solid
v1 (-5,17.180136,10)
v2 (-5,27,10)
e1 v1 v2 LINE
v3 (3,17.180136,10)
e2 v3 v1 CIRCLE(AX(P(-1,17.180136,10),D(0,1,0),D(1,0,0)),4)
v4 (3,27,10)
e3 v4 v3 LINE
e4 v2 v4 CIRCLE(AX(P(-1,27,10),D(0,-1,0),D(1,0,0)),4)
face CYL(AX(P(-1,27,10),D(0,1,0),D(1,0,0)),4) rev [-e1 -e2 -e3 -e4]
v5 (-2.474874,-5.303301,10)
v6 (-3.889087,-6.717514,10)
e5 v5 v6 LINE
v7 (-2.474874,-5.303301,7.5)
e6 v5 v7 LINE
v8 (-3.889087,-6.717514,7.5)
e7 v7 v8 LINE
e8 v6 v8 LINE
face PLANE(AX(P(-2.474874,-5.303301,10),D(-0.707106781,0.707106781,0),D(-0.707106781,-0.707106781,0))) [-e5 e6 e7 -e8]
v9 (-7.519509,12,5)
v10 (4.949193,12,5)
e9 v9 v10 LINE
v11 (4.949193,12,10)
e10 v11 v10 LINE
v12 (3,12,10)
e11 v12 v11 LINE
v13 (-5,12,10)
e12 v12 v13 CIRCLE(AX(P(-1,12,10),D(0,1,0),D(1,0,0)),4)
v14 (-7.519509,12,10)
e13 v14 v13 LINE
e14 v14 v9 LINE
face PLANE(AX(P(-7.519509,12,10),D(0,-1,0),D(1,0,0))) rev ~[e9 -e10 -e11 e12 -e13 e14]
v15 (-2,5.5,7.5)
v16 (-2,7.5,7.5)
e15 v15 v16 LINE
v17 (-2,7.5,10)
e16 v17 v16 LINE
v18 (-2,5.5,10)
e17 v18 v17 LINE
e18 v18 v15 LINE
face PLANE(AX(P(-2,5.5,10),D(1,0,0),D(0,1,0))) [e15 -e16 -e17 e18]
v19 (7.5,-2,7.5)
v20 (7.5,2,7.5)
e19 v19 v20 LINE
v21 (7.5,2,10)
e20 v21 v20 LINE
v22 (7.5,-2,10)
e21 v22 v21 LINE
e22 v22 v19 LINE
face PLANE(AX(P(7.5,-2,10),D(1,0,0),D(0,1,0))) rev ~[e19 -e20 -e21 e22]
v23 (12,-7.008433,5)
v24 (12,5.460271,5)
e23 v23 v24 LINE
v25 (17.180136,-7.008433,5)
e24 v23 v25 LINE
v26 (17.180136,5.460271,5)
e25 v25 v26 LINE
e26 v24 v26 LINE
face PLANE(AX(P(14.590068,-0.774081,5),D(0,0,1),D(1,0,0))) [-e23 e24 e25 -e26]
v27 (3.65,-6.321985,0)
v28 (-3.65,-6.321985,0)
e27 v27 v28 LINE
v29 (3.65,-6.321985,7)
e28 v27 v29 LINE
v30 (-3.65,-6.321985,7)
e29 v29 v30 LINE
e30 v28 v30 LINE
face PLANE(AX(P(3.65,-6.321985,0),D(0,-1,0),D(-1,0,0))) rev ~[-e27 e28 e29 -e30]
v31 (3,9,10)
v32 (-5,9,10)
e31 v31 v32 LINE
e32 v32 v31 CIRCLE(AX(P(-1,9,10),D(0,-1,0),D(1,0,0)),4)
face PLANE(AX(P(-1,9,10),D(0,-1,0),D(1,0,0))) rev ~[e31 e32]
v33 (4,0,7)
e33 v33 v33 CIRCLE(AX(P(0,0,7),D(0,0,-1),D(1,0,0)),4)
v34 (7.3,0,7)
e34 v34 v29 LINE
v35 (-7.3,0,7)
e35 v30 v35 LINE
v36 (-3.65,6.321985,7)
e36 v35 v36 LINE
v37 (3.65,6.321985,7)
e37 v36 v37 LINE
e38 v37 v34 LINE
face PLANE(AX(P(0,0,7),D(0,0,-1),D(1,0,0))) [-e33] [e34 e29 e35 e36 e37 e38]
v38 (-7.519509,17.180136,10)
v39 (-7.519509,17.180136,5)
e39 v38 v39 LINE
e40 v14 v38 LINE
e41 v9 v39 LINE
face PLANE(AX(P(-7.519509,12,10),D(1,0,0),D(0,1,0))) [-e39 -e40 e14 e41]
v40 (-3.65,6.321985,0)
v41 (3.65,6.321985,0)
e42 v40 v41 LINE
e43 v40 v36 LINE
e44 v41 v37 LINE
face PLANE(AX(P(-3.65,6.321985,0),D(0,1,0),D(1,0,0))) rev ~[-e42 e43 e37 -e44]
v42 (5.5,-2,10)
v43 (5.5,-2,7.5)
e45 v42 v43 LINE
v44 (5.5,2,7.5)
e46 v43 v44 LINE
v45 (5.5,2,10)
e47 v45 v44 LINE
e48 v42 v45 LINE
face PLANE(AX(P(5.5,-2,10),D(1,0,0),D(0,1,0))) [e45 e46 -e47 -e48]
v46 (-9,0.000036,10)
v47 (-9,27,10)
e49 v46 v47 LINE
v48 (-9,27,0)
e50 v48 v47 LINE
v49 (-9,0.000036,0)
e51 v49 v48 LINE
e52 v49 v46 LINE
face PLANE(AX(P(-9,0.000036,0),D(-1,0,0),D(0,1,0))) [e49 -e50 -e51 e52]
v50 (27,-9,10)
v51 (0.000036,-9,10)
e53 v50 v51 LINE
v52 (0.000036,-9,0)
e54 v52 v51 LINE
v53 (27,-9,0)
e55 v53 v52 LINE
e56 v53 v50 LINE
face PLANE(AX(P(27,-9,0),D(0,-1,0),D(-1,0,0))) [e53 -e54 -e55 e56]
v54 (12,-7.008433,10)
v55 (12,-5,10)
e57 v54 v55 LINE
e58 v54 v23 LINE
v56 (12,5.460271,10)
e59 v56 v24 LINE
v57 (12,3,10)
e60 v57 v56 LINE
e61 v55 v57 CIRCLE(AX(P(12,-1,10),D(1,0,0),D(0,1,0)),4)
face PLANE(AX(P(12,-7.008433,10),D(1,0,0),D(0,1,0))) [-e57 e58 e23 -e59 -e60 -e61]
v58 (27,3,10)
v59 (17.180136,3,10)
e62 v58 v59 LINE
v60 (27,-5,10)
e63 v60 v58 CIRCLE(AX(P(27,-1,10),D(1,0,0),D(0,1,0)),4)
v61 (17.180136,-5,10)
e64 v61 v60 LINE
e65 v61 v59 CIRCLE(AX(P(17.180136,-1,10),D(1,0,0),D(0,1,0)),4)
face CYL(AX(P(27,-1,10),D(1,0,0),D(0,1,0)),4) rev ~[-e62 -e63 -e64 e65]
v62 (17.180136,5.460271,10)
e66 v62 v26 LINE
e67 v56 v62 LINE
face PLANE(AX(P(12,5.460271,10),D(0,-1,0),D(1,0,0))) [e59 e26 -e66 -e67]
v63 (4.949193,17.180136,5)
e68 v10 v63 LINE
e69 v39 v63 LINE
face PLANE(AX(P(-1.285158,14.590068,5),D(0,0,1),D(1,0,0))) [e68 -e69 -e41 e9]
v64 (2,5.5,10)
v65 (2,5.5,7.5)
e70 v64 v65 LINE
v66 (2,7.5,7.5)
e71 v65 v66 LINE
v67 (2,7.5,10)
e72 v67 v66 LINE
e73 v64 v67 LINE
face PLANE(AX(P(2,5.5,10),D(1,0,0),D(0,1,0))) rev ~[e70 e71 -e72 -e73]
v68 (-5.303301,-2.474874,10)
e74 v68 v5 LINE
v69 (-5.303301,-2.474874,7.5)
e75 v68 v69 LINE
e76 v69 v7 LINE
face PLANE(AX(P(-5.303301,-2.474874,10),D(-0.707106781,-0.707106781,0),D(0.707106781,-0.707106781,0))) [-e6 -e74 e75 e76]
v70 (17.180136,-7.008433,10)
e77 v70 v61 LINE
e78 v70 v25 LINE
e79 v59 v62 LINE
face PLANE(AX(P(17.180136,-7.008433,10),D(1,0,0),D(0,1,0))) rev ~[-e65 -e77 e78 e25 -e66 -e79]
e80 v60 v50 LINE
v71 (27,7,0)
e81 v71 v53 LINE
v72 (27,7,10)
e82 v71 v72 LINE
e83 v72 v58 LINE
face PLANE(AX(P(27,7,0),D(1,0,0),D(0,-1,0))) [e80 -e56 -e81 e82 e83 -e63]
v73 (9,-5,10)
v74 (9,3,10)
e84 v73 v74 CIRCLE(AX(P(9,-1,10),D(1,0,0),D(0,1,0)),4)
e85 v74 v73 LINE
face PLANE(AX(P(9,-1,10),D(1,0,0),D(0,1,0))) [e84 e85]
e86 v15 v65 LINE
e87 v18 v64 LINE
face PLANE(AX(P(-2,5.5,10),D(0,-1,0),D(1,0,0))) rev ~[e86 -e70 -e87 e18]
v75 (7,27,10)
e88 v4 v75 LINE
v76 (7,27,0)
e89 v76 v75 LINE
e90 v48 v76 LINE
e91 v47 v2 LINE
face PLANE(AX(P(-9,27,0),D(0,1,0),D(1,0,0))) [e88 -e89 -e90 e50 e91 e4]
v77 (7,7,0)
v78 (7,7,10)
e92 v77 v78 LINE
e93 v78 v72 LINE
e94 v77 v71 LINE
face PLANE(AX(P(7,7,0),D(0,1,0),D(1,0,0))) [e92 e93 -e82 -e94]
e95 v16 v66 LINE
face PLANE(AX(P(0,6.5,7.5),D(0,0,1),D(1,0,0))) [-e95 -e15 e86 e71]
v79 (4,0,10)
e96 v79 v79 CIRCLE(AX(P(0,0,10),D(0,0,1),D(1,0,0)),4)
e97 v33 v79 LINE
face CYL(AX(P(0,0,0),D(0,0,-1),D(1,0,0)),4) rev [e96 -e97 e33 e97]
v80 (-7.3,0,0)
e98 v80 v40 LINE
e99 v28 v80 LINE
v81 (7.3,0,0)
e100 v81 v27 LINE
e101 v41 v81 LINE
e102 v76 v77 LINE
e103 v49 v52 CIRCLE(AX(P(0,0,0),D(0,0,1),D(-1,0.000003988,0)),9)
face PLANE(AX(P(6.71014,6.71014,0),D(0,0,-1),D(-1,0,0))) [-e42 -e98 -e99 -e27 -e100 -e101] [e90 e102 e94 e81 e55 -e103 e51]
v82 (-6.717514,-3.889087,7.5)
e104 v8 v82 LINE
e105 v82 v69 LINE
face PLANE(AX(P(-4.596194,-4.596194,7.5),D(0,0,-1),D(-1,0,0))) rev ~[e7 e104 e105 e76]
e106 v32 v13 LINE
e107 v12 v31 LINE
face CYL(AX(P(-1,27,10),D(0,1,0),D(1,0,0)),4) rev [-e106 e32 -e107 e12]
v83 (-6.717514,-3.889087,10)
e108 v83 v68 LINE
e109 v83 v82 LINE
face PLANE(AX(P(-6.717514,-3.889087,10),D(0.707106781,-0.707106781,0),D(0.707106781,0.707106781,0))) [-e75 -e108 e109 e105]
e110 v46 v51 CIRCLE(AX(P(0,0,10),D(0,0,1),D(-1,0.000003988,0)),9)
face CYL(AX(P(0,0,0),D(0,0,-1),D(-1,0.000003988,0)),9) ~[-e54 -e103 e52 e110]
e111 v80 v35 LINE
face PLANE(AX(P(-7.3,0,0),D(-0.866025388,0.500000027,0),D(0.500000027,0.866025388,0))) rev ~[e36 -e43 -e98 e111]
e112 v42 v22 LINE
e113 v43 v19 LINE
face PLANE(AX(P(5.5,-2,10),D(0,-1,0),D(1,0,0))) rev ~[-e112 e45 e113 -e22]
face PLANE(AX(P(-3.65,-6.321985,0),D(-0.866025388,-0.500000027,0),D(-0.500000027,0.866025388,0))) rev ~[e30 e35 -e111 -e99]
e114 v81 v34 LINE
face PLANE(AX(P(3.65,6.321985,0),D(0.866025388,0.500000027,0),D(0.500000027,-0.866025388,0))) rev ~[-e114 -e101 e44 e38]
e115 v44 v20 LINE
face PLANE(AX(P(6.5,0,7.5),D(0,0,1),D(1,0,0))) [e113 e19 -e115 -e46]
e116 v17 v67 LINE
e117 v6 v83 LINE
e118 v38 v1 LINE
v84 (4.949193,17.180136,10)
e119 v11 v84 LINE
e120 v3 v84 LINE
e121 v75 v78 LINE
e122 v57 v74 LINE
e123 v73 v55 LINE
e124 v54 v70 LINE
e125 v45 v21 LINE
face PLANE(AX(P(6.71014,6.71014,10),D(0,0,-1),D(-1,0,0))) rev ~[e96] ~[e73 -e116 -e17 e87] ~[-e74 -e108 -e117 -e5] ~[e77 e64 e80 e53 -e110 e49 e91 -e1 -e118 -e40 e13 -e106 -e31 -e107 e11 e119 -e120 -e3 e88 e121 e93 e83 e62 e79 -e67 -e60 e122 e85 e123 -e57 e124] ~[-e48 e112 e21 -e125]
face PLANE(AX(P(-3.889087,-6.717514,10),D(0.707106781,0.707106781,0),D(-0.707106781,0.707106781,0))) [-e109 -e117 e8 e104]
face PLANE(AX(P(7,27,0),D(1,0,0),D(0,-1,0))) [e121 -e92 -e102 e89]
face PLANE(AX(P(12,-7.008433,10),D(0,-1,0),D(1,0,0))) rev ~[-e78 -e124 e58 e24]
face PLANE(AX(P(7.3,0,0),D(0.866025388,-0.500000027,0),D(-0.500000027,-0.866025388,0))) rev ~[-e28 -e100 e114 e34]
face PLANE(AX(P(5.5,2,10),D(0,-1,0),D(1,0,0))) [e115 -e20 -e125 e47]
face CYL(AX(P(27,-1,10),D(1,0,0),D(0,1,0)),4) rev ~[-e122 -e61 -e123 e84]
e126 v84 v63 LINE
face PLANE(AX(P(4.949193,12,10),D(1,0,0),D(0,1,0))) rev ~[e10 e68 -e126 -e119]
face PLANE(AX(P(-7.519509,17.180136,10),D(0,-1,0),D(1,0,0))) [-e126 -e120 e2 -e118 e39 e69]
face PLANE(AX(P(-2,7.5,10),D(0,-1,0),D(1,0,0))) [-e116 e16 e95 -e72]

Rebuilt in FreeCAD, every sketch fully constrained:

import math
import FreeCAD as App
import Part
import Sketcher
Q = App.Units.Quantity

doc = App.newDocument("Part")
params = doc.addObject("Spreadsheet::Sheet", "Params")
for row, (alias, value) in enumerate([
    ("pad1_length", "5 mm"),
    ("sketch2_diameter", "8 mm"),
    ("pad2_length", "18 mm"),
    ("sketch3_diameter", "8 mm"),
    ("pad3_length", "18 mm"),
    ("sketch4_width", "7.3 mm"),
    ("sketch4_length", "7.3 mm"),
    ("pad4_length", "7 mm"),
    ("sketch5_width", "4 mm"),
    ("sketch5_width2", "2 mm"),
    ("sketch5_length", "1.999999 mm"),
    ("sketch5_length2", "4 mm"),
    ("pad5_length", "2.5 mm"),
    ("sketch6_diameter", "8 mm"),
    ("sketch6_radius", "9 mm"),
    ("sketch6_width", "20 mm"),
    ("sketch6_width2", "16 mm"),
    ("pad6_length", "10 mm"),
], start=1):
    params.set(f"A{row}", alias)
    params.set(f"B{row}", "=" + value)
    params.setAlias(f"B{row}", alias)

body = doc.addObject("PartDesign::Body", "Body")
body.AllowCompound = True

sketch1 = doc.addObject("Sketcher::SketchObject", "Sketch")
body.addObject(sketch1)
sketch1.AttachmentSupport = (doc.XY_Plane, [""])
sketch1.MapMode = "FlatFace"
sketch1.AttachmentOffset = App.Placement(App.Vector(0, 0, 10), App.Rotation())
sketch1.addGeometry([
    Part.LineSegment(App.Vector(-8, 17, 0), App.Vector(-8, 12, 0)),
    Part.LineSegment(App.Vector(-8, 12, 0), App.Vector(5, 12, 0)),
    Part.LineSegment(App.Vector(5, 12, 0), App.Vector(5, 17, 0)),
    Part.LineSegment(App.Vector(5, 17, 0), App.Vector(-8, 17, 0)),
    Part.LineSegment(App.Vector(12, 5, 0), App.Vector(12, -7, 0)),
    Part.LineSegment(App.Vector(12, -7, 0), App.Vector(17, -7, 0)),
    Part.LineSegment(App.Vector(17, -7, 0), App.Vector(17, 5, 0)),
    Part.LineSegment(App.Vector(17, 5, 0), App.Vector(12, 5, 0)),
], False)
sketch1.addConstraint([
    Sketcher.Constraint("Coincident", 0, 2, 1, 1),
    Sketcher.Constraint("Coincident", 1, 2, 2, 1),
    Sketcher.Constraint("Coincident", 2, 2, 3, 1),
    Sketcher.Constraint("Coincident", 3, 2, 0, 1),
    Sketcher.Constraint("Coincident", 4, 2, 5, 1),
    Sketcher.Constraint("Coincident", 5, 2, 6, 1),
    Sketcher.Constraint("Coincident", 6, 2, 7, 1),
    Sketcher.Constraint("Coincident", 7, 2, 4, 1),
    Sketcher.Constraint("Vertical", 0),
    Sketcher.Constraint("Horizontal", 1),
    Sketcher.Constraint("Vertical", 2),
    Sketcher.Constraint("Horizontal", 3),
    Sketcher.Constraint("Vertical", 4),
    Sketcher.Constraint("Horizontal", 5),
    Sketcher.Constraint("Vertical", 6),
    Sketcher.Constraint("Horizontal", 7),
    Sketcher.Constraint("Equal", 7, 0),
    Sketcher.Constraint("Equal", 3, 4),
    Sketcher.Constraint("DistanceY", -1, 1, 0, 2, Q("12 mm")),
    Sketcher.Constraint("DistanceX", -1, 1, 4, 2, Q("12 mm")),
    Sketcher.Constraint("DistanceX", 1, 1, 1, 2, Q("12.468703 mm")),
    Sketcher.Constraint("DistanceX", 5, 1, 5, 2, Q("5.180136 mm")),
    Sketcher.Constraint("DistanceX", 0, 2, -1, 1, Q("7.519509 mm")),
    Sketcher.Constraint("DistanceY", -1, 1, 6, 2, Q("5.460271 mm")),
])
pad1 = doc.addObject("PartDesign::Pad", "Pad")
body.addObject(pad1)
pad1.Profile = sketch1
pad1.setExpression("Length", "Params.pad1_length")
pad1.Reversed = True
body2 = doc.addObject("PartDesign::Body", "Body001")

sketch2 = doc.addObject("Sketcher::SketchObject", "Sketch001")
body2.addObject(sketch2)
sketch2.AttachmentSupport = (doc.getObject("XZ_Plane001"), [""])
sketch2.MapMode = "FlatFace"
sketch2.AttachmentOffset = App.Placement(App.Vector(0, 0, -27), App.Rotation())
sketch2.addGeometry(Part.Circle(App.Vector(-1, 10, 0), App.Vector(0, 0, 1), 4), False)
sketch2.addConstraint([
    Sketcher.Constraint("Diameter", 0, Q("8 mm")),
    Sketcher.Constraint("DistanceX", 0, 3, -1, 1, Q("1 mm")),
    Sketcher.Constraint("DistanceY", -1, 1, 0, 3, Q("10 mm")),
])
sketch2.setExpression("Constraints[0]", "Params.sketch2_diameter")
pad2 = doc.addObject("PartDesign::Pad", "Pad001")
body2.addObject(pad2)
pad2.Profile = sketch2
pad2.setExpression("Length", "Params.pad2_length")
body3 = doc.addObject("PartDesign::Body", "Body002")

sketch3 = doc.addObject("Sketcher::SketchObject", "Sketch002")
body3.addObject(sketch3)
sketch3.AttachmentSupport = (doc.getObject("YZ_Plane002"), [""])
sketch3.MapMode = "FlatFace"
sketch3.AttachmentOffset = App.Placement(App.Vector(0, 0, 27), App.Rotation())
sketch3.addGeometry(Part.Circle(App.Vector(-1, 10, 0), App.Vector(0, 0, 1), 4), False)
sketch3.addConstraint([
    Sketcher.Constraint("Diameter", 0, Q("8 mm")),
    Sketcher.Constraint("DistanceX", 0, 3, -1, 1, Q("1 mm")),
    Sketcher.Constraint("DistanceY", -1, 1, 0, 3, Q("10 mm")),
])
sketch3.setExpression("Constraints[0]", "Params.sketch3_diameter")
pad3 = doc.addObject("PartDesign::Pad", "Pad002")
body3.addObject(pad3)
pad3.Profile = sketch3
pad3.setExpression("Length", "Params.pad3_length")
pad3.Reversed = True
body4 = doc.addObject("PartDesign::Body", "Body003")

sketch4 = doc.addObject("Sketcher::SketchObject", "Sketch003")
body4.addObject(sketch4)
sketch4.AttachmentSupport = (doc.getObject("XY_Plane003"), [""])
sketch4.MapMode = "FlatFace"
sketch4.addGeometry([
    Part.LineSegment(App.Vector(4, 6, 0), App.Vector(7, 0, 0)),
    Part.LineSegment(App.Vector(7, 0, 0), App.Vector(4, -6, 0)),
    Part.LineSegment(App.Vector(4, -6, 0), App.Vector(-4, -6, 0)),
    Part.LineSegment(App.Vector(-4, -6, 0), App.Vector(-7, 0, 0)),
    Part.LineSegment(App.Vector(-7, 0, 0), App.Vector(-4, 6, 0)),
    Part.LineSegment(App.Vector(-4, 6, 0), App.Vector(4, 6, 0)),
], False)
sketch4.addConstraint([
    Sketcher.Constraint("Coincident", 0, 2, 1, 1),
    Sketcher.Constraint("Coincident", 1, 2, 2, 1),
    Sketcher.Constraint("Coincident", 2, 2, 3, 1),
    Sketcher.Constraint("Coincident", 3, 2, 4, 1),
    Sketcher.Constraint("Coincident", 4, 2, 5, 1),
    Sketcher.Constraint("Coincident", 5, 2, 0, 1),
    Sketcher.Constraint("Horizontal", 2),
    Sketcher.Constraint("Horizontal", 5),
    Sketcher.Constraint("Symmetric", 0, 2, 3, 2, -1, 1),
    Sketcher.Constraint("Symmetric", 1, 2, 4, 2, -1, 1),
    Sketcher.Constraint("PointOnObject", 0, 2, -1),
    Sketcher.Constraint("Parallel", 0, 3),
    Sketcher.Constraint("Vertical", 2, 2, 4, 2),
    Sketcher.Constraint("Angle", 0, Q("-59.999998 deg")),
    Sketcher.Constraint("DistanceX", 2, 2, 2, 1, Q("7.3 mm")),
    Sketcher.Constraint("Distance", 0, Q("7.3 mm")),
])
sketch4.setExpression("Constraints[14]", "Params.sketch4_width")
sketch4.setExpression("Constraints[15]", "Params.sketch4_length")
pad4 = doc.addObject("PartDesign::Pad", "Pad003")
body4.addObject(pad4)
pad4.Profile = sketch4
pad4.setExpression("Length", "Params.pad4_length")
body5 = doc.addObject("PartDesign::Body", "Body004")
body5.AllowCompound = True

sketch5 = doc.addObject("Sketcher::SketchObject", "Sketch004")
body5.addObject(sketch5)
sketch5.AttachmentSupport = (doc.getObject("XY_Plane004"), [""])
sketch5.MapMode = "FlatFace"
sketch5.AttachmentOffset = App.Placement(App.Vector(0, 0, 10), App.Rotation())
sketch5.addGeometry([
    Part.LineSegment(App.Vector(-2, 7.5, 0), App.Vector(-2, 5.5, 0)),
    Part.LineSegment(App.Vector(-2, 5.5, 0), App.Vector(2, 5.5, 0)),
    Part.LineSegment(App.Vector(2, 5.5, 0), App.Vector(2, 7.5, 0)),
    Part.LineSegment(App.Vector(2, 7.5, 0), App.Vector(-2, 7.5, 0)),
    Part.LineSegment(App.Vector(5.5, 2, 0), App.Vector(5.5, -2, 0)),
    Part.LineSegment(App.Vector(5.5, -2, 0), App.Vector(7.5, -2, 0)),
    Part.LineSegment(App.Vector(7.5, -2, 0), App.Vector(7.5, 2, 0)),
    Part.LineSegment(App.Vector(7.5, 2, 0), App.Vector(5.5, 2, 0)),
    Part.LineSegment(App.Vector(-5.3, -2.5, 0), App.Vector(-6.7, -3.9, 0)),
    Part.LineSegment(App.Vector(-6.7, -3.9, 0), App.Vector(-3.9, -6.7, 0)),
    Part.LineSegment(App.Vector(-3.9, -6.7, 0), App.Vector(-2.5, -5.3, 0)),
    Part.LineSegment(App.Vector(-2.5, -5.3, 0), App.Vector(-5.3, -2.5, 0)),
], False)
sketch5.addConstraint([
    Sketcher.Constraint("Coincident", 0, 2, 1, 1),
    Sketcher.Constraint("Coincident", 1, 2, 2, 1),
    Sketcher.Constraint("Coincident", 2, 2, 3, 1),
    Sketcher.Constraint("Coincident", 3, 2, 0, 1),
    Sketcher.Constraint("Coincident", 4, 2, 5, 1),
    Sketcher.Constraint("Coincident", 5, 2, 6, 1),
    Sketcher.Constraint("Coincident", 6, 2, 7, 1),
    Sketcher.Constraint("Coincident", 7, 2, 4, 1),
    Sketcher.Constraint("Coincident", 8, 2, 9, 1),
    Sketcher.Constraint("Coincident", 9, 2, 10, 1),
    Sketcher.Constraint("Coincident", 10, 2, 11, 1),
    Sketcher.Constraint("Coincident", 11, 2, 8, 1),
    Sketcher.Constraint("Vertical", 0),
    Sketcher.Constraint("Horizontal", 1),
    Sketcher.Constraint("Vertical", 2),
    Sketcher.Constraint("Horizontal", 3),
    Sketcher.Constraint("Vertical", 4),
    Sketcher.Constraint("Horizontal", 5),
    Sketcher.Constraint("Vertical", 6),
    Sketcher.Constraint("Horizontal", 7),
    Sketcher.Constraint("Perpendicular", 8, 9),
    Sketcher.Constraint("Perpendicular", 9, 10),
    Sketcher.Constraint("Perpendicular", 10, 11),
    Sketcher.Constraint("Equal", 7, 0),
    Sketcher.Constraint("Equal", 3, 4),
    Sketcher.Constraint("DistanceX", 1, 1, 1, 2, Q("4 mm")),
    Sketcher.Constraint("DistanceX", 5, 1, 5, 2, Q("2 mm")),
    Sketcher.Constraint("Angle", 8, Q("-135 deg")),
    Sketcher.Constraint("Distance", 8, Q("1.999999 mm")),
    Sketcher.Constraint("Distance", 9, Q("4 mm")),
    Sketcher.Constraint("DistanceX", 0, 2, -1, 1, Q("2 mm")),
    Sketcher.Constraint("DistanceY", 4, 2, -1, 1, Q("2 mm")),
    Sketcher.Constraint("DistanceY", -1, 1, 0, 2, Q("5.5 mm")),
    Sketcher.Constraint("DistanceX", -1, 1, 4, 2, Q("5.5 mm")),
    Sketcher.Constraint("DistanceY", 10, 2, -1, 1, Q("5.303301 mm")),
    Sketcher.Constraint("DistanceX", 11, 2, -1, 1, Q("5.303301 mm")),
])
sketch5.setExpression("Constraints[25]", "Params.sketch5_width")
sketch5.setExpression("Constraints[26]", "Params.sketch5_width2")
sketch5.setExpression("Constraints[28]", "Params.sketch5_length")
sketch5.setExpression("Constraints[29]", "Params.sketch5_length2")
pad5 = doc.addObject("PartDesign::Pad", "Pad004")
body5.addObject(pad5)
pad5.Profile = sketch5
pad5.setExpression("Length", "Params.pad5_length")
pad5.Reversed = True
doc.recompute()

boolean = doc.addObject("PartDesign::Boolean", "Boolean")
body5.addObject(boolean)
boolean.Type = "Fuse"
boolean.addObjects([body])
doc.recompute()

boolean2 = doc.addObject("PartDesign::Boolean", "Boolean001")
body5.addObject(boolean2)
boolean2.Type = "Fuse"
boolean2.addObjects([body2])
doc.recompute()

boolean3 = doc.addObject("PartDesign::Boolean", "Boolean002")
body5.addObject(boolean3)
boolean3.Type = "Fuse"
boolean3.addObjects([body3])
doc.recompute()

boolean4 = doc.addObject("PartDesign::Boolean", "Boolean003")
body5.addObject(boolean4)
boolean4.Type = "Fuse"
boolean4.addObjects([body4])
body6 = doc.addObject("PartDesign::Body", "Body005")

sketch6 = doc.addObject("Sketcher::SketchObject", "Sketch005")
body6.addObject(sketch6)
sketch6.AttachmentSupport = (doc.getObject("XY_Plane005"), [""])
sketch6.MapMode = "FlatFace"
sketch6.addGeometry([
    Part.LineSegment(App.Vector(-9, 27, 0), App.Vector(-9, 0, 0)),
    Part.ArcOfCircle(Part.Circle(App.Vector(0, 0, 0), App.Vector(0, 0, 1), 9), math.radians(180), math.radians(270)),
    Part.LineSegment(App.Vector(0, -9, 0), App.Vector(27, -9, 0)),
    Part.LineSegment(App.Vector(27, -9, 0), App.Vector(27, 7, 0)),
    Part.LineSegment(App.Vector(27, 7, 0), App.Vector(7, 7, 0)),
    Part.LineSegment(App.Vector(7, 7, 0), App.Vector(7, 27, 0)),
    Part.LineSegment(App.Vector(7, 27, 0), App.Vector(-9, 27, 0)),
    Part.Circle(App.Vector(0, 0, 0), App.Vector(0, 0, 1), 4),
], False)
sketch6.addConstraint([
    Sketcher.Constraint("Coincident", 0, 2, 1, 1),
    Sketcher.Constraint("Coincident", 1, 2, 2, 1),
    Sketcher.Constraint("Coincident", 2, 2, 3, 1),
    Sketcher.Constraint("Coincident", 3, 2, 4, 1),
    Sketcher.Constraint("Coincident", 4, 2, 5, 1),
    Sketcher.Constraint("Coincident", 5, 2, 6, 1),
    Sketcher.Constraint("Coincident", 6, 2, 0, 1),
    Sketcher.Constraint("Vertical", 0),
    Sketcher.Constraint("Horizontal", 2),
    Sketcher.Constraint("Vertical", 3),
    Sketcher.Constraint("Horizontal", 4),
    Sketcher.Constraint("Vertical", 5),
    Sketcher.Constraint("Horizontal", 6),
    Sketcher.Constraint("Coincident", 1, 3, -1, 1),
    Sketcher.Constraint("Coincident", 7, 3, -1, 1),
    Sketcher.Constraint("Equal", 2, 0),
    Sketcher.Constraint("Equal", 6, 3),
    Sketcher.Constraint("Equal", 4, 5),
    Sketcher.Constraint("Diameter", 7, Q("8 mm")),
    Sketcher.Constraint("Radius", 1, Q("9 mm")),
    Sketcher.Constraint("DistanceX", 4, 2, 4, 1, Q("20 mm")),
    Sketcher.Constraint("DistanceX", 6, 2, 6, 1, Q("16 mm")),
    Sketcher.Constraint("DistanceX", 2, 1, 2, 2, Q("26.999964 mm")),
])
sketch6.setExpression("Constraints[18]", "Params.sketch6_diameter")
sketch6.setExpression("Constraints[19]", "Params.sketch6_radius")
sketch6.setExpression("Constraints[20]", "Params.sketch6_width")
sketch6.setExpression("Constraints[21]", "Params.sketch6_width2")
pad6 = doc.addObject("PartDesign::Pad", "Pad005")
body6.addObject(pad6)
pad6.Profile = sketch6
pad6.setExpression("Length", "Params.pad6_length")
doc.recompute()

boolean5 = doc.addObject("PartDesign::Boolean", "Boolean004")
body6.addObject(boolean5)
boolean5.Type = "Cut"
boolean5.addObjects([body5])

doc.recompute()
